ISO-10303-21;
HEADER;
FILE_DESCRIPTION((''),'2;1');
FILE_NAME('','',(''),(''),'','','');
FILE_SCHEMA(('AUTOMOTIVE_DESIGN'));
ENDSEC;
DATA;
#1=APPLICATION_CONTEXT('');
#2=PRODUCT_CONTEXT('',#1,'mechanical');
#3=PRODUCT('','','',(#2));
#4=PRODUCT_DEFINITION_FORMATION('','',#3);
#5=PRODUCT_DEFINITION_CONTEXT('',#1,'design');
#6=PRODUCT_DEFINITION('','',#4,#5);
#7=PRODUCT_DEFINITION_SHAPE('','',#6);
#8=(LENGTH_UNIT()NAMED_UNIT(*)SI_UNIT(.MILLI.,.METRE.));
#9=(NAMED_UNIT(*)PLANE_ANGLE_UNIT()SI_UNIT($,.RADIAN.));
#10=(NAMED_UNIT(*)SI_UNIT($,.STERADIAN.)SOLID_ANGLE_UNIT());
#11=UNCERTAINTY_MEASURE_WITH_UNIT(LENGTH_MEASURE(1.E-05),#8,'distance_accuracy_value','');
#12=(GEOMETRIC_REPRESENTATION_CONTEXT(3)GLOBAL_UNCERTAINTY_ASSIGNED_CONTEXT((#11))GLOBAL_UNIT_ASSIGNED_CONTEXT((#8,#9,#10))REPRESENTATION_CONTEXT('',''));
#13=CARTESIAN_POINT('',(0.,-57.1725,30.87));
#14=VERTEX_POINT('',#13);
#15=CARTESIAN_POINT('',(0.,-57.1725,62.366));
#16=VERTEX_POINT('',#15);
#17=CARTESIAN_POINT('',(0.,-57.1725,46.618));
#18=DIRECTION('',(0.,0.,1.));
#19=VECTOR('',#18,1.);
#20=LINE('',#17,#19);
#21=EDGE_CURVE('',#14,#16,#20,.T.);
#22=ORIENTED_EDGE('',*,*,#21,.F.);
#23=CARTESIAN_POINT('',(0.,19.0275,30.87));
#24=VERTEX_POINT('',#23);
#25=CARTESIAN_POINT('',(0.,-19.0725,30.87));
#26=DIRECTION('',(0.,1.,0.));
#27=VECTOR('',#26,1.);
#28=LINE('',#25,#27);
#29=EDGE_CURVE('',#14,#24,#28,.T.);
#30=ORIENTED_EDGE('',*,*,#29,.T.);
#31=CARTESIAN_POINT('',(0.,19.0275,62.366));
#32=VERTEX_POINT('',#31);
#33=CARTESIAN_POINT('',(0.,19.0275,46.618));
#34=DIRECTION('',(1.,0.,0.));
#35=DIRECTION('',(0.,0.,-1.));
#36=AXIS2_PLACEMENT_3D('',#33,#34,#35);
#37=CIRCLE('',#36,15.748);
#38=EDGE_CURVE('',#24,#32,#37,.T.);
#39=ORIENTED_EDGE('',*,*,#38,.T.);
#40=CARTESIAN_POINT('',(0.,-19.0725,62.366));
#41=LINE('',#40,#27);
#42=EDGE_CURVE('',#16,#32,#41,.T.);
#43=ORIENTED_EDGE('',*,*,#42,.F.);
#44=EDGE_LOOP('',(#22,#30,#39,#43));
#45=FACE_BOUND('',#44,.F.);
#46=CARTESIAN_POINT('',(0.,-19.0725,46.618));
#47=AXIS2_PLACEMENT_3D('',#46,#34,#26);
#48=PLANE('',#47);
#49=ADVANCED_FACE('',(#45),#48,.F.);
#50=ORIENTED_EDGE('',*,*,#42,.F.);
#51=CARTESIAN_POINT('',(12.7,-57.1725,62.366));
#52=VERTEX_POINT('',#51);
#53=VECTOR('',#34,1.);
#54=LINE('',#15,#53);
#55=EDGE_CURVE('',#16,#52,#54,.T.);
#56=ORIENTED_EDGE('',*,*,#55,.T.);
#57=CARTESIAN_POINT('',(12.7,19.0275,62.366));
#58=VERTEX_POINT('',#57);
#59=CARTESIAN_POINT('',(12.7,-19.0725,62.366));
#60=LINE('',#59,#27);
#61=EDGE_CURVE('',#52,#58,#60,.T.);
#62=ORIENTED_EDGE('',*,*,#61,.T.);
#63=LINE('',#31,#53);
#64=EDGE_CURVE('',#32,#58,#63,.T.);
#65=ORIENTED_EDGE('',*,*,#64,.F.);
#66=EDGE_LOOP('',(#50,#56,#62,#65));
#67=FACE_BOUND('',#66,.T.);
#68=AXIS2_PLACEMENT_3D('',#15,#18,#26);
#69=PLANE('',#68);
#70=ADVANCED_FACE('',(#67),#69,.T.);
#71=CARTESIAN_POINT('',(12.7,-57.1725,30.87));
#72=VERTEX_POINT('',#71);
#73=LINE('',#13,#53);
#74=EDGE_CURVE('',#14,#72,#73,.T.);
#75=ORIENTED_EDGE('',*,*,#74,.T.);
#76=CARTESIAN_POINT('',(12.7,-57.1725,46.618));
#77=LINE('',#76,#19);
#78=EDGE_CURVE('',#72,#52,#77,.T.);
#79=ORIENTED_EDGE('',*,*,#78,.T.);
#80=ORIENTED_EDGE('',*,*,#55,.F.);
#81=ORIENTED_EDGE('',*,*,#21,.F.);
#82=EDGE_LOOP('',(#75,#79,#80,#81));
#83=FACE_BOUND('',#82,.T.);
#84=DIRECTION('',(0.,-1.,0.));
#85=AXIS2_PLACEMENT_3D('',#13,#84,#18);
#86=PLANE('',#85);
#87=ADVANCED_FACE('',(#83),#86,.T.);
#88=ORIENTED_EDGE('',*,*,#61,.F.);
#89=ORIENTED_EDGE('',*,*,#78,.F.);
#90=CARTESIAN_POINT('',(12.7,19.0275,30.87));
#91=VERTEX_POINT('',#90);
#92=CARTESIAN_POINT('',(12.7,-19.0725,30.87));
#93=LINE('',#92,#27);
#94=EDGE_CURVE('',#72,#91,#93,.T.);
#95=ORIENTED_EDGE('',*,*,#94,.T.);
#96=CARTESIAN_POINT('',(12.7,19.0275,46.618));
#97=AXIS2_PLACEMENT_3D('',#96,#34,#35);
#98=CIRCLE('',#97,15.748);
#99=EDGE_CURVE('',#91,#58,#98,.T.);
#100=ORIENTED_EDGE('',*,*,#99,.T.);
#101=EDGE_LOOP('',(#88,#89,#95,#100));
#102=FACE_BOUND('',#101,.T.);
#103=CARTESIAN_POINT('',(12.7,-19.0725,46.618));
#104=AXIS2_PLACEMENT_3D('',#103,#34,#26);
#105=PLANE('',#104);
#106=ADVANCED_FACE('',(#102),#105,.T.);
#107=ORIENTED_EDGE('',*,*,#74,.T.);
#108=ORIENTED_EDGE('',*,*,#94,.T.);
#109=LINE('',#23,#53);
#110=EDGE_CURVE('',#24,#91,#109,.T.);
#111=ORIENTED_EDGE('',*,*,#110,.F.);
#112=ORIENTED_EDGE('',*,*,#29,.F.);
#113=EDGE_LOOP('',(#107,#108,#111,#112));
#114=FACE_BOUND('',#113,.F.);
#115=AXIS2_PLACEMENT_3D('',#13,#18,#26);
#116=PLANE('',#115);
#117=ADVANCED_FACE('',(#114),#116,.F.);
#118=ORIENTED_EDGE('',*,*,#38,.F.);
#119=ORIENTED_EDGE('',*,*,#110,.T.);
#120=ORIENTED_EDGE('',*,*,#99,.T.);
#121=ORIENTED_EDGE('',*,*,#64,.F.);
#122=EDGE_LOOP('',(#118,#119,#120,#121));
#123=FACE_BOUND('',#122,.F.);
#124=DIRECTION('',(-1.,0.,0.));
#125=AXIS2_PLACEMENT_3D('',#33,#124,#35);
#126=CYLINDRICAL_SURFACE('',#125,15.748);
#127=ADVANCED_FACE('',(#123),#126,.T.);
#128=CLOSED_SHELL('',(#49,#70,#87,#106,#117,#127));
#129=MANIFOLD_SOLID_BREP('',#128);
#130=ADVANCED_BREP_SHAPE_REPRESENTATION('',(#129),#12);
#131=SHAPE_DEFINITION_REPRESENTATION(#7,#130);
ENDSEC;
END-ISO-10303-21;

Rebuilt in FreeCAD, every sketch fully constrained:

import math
import FreeCAD as App
import Part
import Sketcher

V = App.Vector
Q = App.Units.Quantity

doc = App.newDocument("Part")
body = doc.addObject("PartDesign::Body", "Body")

sketch1 = doc.addObject("Sketcher::SketchObject", "Sketch")
body.addObject(sketch1)
sketch1.AttachmentSupport = (doc.YZ_Plane, [""])
sketch1.MapMode = "FlatFace"
sketch1.addGeometry([
    Part.LineSegment(V(-57, 62, 0), V(-57, 31, 0)),
    Part.LineSegment(V(-57, 31, 0), V(19, 31, 0)),
    Part.ArcOfCircle(Part.Circle(V(19, 47, 0), V(0, 0, 1), 16), math.radians(-90), math.radians(90)),
    Part.LineSegment(V(19, 62, 0), V(-57, 62, 0)),
], False)
sketch1.addConstraint([
    Sketcher.Constraint("Coincident", 0, 2, 1, 1),
    Sketcher.Constraint("Tangent", 1, 2, 2, 1),
    Sketcher.Constraint("Tangent", 2, 2, 3, 1),
    Sketcher.Constraint("Coincident", 3, 2, 0, 1),
    Sketcher.Constraint("Vertical", 0),
    Sketcher.Constraint("Horizontal", 1),
    Sketcher.Constraint("Horizontal", 3),
    Sketcher.Constraint("DistanceX", 1, 1, 1, 2, Q("3 in")),
    Sketcher.Constraint("Radius", 2, Q("0.62 in")),
    Sketcher.Constraint("DistanceX", -1, 1, 2, 3, 19.0275),
    Sketcher.Constraint("DistanceY", -1, 1, 2, 3, 46.618),
])
pad1 = doc.addObject("PartDesign::Pad", "Pad")
body.addObject(pad1)
pad1.Profile = sketch1
pad1.Length = Q("0.5 in")

doc.recompute()
